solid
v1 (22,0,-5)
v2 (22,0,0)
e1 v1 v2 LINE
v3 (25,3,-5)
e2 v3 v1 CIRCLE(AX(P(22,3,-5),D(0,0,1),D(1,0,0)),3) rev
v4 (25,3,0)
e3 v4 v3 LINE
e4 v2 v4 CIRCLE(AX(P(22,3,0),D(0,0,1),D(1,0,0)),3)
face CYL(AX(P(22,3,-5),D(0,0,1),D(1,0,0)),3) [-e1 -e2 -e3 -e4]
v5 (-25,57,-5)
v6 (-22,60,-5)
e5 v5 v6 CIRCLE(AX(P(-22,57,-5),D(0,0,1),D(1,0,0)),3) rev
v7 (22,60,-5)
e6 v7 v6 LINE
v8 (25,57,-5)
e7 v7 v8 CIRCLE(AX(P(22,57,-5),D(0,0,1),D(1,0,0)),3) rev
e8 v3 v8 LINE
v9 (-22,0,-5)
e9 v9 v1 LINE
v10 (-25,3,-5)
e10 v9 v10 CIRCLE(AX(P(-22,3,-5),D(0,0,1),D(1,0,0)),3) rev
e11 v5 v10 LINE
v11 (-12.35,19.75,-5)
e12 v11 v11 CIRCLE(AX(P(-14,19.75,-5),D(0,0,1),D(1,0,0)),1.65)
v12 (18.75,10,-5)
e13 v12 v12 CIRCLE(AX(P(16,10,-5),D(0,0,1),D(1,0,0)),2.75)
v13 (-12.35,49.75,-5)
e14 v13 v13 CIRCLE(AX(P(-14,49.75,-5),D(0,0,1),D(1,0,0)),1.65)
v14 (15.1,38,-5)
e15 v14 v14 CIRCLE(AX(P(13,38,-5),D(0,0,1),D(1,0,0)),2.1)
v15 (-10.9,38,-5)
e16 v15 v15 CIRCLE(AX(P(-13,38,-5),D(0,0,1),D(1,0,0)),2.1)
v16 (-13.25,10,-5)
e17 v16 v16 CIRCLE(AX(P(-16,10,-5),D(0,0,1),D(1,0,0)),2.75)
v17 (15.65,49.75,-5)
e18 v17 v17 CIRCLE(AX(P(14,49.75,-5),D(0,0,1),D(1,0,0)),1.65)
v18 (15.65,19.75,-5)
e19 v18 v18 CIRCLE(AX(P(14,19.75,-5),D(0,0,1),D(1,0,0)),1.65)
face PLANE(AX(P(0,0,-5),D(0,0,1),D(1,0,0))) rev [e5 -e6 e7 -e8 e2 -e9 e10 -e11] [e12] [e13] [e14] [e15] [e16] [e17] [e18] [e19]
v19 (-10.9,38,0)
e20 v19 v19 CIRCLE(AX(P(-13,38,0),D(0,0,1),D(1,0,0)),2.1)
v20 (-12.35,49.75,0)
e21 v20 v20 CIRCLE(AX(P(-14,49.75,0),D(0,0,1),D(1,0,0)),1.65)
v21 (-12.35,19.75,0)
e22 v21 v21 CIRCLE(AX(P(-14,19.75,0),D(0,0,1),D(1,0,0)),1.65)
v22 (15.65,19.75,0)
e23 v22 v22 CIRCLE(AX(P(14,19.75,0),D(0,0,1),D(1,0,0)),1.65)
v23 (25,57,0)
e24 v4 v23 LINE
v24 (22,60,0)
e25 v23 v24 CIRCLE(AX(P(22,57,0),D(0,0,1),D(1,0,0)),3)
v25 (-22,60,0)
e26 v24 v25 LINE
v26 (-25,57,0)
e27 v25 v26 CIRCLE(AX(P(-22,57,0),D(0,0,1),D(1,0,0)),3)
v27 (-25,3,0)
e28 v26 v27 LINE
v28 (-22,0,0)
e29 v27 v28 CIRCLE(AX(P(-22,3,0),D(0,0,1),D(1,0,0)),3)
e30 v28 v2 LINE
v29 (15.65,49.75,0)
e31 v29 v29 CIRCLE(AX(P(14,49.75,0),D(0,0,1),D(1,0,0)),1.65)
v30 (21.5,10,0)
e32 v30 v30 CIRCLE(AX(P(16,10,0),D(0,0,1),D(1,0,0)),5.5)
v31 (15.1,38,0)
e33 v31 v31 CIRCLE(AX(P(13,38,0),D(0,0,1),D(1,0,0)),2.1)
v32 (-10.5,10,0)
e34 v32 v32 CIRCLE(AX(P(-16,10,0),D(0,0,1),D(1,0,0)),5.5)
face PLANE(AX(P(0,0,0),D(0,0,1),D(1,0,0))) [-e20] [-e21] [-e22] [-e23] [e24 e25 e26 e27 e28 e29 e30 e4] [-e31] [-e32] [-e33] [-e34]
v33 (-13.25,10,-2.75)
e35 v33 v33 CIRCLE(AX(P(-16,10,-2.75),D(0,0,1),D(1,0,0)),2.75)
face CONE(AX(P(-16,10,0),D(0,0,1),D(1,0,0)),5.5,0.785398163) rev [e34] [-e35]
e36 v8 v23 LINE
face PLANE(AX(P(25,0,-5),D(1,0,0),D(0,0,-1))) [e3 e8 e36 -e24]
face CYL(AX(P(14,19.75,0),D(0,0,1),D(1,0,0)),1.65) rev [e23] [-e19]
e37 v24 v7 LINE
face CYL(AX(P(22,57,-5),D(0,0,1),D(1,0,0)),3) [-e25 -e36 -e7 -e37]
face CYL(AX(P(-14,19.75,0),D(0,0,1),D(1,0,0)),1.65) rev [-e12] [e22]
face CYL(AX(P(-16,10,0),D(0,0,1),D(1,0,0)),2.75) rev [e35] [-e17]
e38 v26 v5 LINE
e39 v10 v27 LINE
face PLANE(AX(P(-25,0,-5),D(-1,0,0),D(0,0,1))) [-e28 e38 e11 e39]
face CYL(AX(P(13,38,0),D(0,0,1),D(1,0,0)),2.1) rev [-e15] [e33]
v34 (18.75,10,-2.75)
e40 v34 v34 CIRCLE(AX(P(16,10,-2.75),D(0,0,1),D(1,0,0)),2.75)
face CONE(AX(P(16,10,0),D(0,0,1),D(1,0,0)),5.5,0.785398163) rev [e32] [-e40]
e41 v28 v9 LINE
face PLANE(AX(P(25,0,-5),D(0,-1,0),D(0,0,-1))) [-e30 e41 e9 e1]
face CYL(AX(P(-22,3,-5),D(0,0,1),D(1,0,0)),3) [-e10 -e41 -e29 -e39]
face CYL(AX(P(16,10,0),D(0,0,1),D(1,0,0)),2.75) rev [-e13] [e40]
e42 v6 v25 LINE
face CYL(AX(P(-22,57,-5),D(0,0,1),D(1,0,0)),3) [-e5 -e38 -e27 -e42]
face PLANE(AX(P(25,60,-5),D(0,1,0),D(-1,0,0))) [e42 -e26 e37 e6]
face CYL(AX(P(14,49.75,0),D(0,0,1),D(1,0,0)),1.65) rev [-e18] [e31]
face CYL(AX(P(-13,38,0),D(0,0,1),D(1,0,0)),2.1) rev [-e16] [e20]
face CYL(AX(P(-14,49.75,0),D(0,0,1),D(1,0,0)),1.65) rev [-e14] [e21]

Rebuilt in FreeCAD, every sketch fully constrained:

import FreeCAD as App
import Part
import Sketcher

V = App.Vector
Q = App.Units.Quantity


def edges_at(feature, points):
    """Names of the edges that pass closest to the given points."""
    edges = feature.Shape.Edges
    near = lambda p: min(range(len(edges)), key=lambda i: edges[i].distToShape(Part.Vertex(*p))[0])
    return sorted({f"Edge{near(p) + 1}" for p in points})


def add_polygon(sketch, points):
    """Adds a closed chain of lines whose ends are joined by coincident constraints."""
    first, n = sketch.GeometryCount, len(points)
    for a, b in zip(points, points[1:] + points[:1]):
        sketch.addGeometry(Part.LineSegment(App.Vector(*a, 0), App.Vector(*b, 0)), False)
    for i in range(n):
        sketch.addConstraint(Sketcher.Constraint("Coincident", first + i, 2, first + (i + 1) % n, 1))

doc = App.newDocument("Part")
params = doc.addObject("Spreadsheet::Sheet", "Params")
for row, (alias, value) in enumerate([
    ("sketch1_width", "50 mm"),
    ("sketch1_height", "60 mm"),
    ("pad1_length", "5 mm"),
    ("sketch2_diameter", "5.5 mm"),
    ("hole_diameter", "5.5 mm"),
    ("hole_depth", "20 mm"),
    ("hole_csink_diameter", "11 mm"),
    ("sketch3_diameter", "3.3 mm"),
    ("hole2_diameter", "3.3 mm"),
    ("sketch4_diameter", "4.2 mm"),
    ("hole3_diameter", "4.2 mm"),
    ("fillet_radius", "3 mm"),
], start=1):
    params.set(f"A{row}", alias)
    params.set(f"B{row}", "=" + value)
    params.setAlias(f"B{row}", alias)

body = doc.addObject("PartDesign::Body", "Body")

# Sketch on XY plane
sketch1 = doc.addObject("Sketcher::SketchObject", "Sketch")
body.addObject(sketch1)
sketch1.AttachmentSupport = (doc.XY_Plane, [""])
sketch1.MapMode = "FlatFace"
add_polygon(sketch1, [(-25, 60), (-25, 0), (25, 0), (25, 60)])  # lines 0-3
sketch1.addConstraint(Sketcher.Constraint("Vertical", 0))
sketch1.addConstraint(Sketcher.Constraint("Horizontal", 1))
sketch1.addConstraint(Sketcher.Constraint("Vertical", 2))
sketch1.addConstraint(Sketcher.Constraint("Horizontal", 3))
sketch1.addConstraint(Sketcher.Constraint("Symmetric", 0, 2, 1, 2, -1, 1))
sketch1.addConstraint(Sketcher.Constraint("DistanceX", 1, 1, 1, 2, Q("50 mm")))
sketch1.addConstraint(Sketcher.Constraint("DistanceY", 0, 2, 0, 1, Q("60 mm")))
sketch1.setExpression("Constraints[9]", "Params.sketch1_width")
sketch1.setExpression("Constraints[10]", "Params.sketch1_height")
pad1 = doc.addObject("PartDesign::Pad", "Pad")
body.addObject(pad1)
pad1.Profile = sketch1
pad1.setExpression("Length", "Params.pad1_length")
pad1.Reversed = True

# Sketch on XY plane
sketch2 = doc.addObject("Sketcher::SketchObject", "Sketch001")
body.addObject(sketch2)
sketch2.AttachmentSupport = (doc.XY_Plane, [""])
sketch2.MapMode = "FlatFace"
sketch2.addGeometry(Part.Circle(V(-16, 10, 0), V(0, 0, 1), 2.8), False)
sketch2.addGeometry(Part.Circle(V(16, 10, 0), V(0, 0, 1), 2.8), False)
sketch2.addConstraint(Sketcher.Constraint("Equal", 0, 1))
sketch2.addConstraint(Sketcher.Constraint("Symmetric", 0, 3, 1, 3, -2))
sketch2.addConstraint(Sketcher.Constraint("Diameter", 0, Q("5.5 mm")))
sketch2.addConstraint(Sketcher.Constraint("DistanceX", 0, 3, -1, 1, Q("16 mm")))
sketch2.addConstraint(Sketcher.Constraint("DistanceY", -1, 1, 0, 3, Q("10 mm")))
sketch2.setExpression("Constraints[2]", "Params.sketch2_diameter")
doc.recompute()
hole = doc.addObject("PartDesign::Hole", "Hole")
body.addObject(hole)
hole.Profile = sketch2
hole.ThreadType = "None"
hole.setExpression("Diameter", "Params.hole_diameter")
hole.DepthType = "Dimension"
hole.setExpression("Depth", "Params.hole_depth")
hole.DrillPoint = "Angled"
hole.DrillPointAngle = 118
hole.HoleCutType = "Countersink"
hole.setExpression("HoleCutDiameter", "Params.hole_csink_diameter")
hole.HoleCutCountersinkAngle = 90

# Sketch on XY plane
sketch3 = doc.addObject("Sketcher::SketchObject", "Sketch002")
body.addObject(sketch3)
sketch3.AttachmentSupport = (doc.XY_Plane, [""])
sketch3.MapMode = "FlatFace"
sketch3.addGeometry(Part.Circle(V(-14, 19.8, 0), V(0, 0, 1), 1.6), False)
sketch3.addGeometry(Part.Circle(V(14, 19.8, 0), V(0, 0, 1), 1.6), False)
sketch3.addGeometry(Part.Circle(V(-14, 49.8, 0), V(0, 0, 1), 1.6), False)
sketch3.addGeometry(Part.Circle(V(14, 49.8, 0), V(0, 0, 1), 1.6), False)
sketch3.addConstraint(Sketcher.Constraint("Equal", 0, 1))
sketch3.addConstraint(Sketcher.Constraint("Equal", 1, 2))
sketch3.addConstraint(Sketcher.Constraint("Equal", 2, 3))
sketch3.addConstraint(Sketcher.Constraint("Symmetric", 0, 3, 1, 3, -2))
sketch3.addConstraint(Sketcher.Constraint("Symmetric", 2, 3, 3, 3, -2))
sketch3.addConstraint(Sketcher.Constraint("Vertical", 0, 3, 2, 3))
sketch3.addConstraint(Sketcher.Constraint("Diameter", 0, Q("3.3 mm")))
sketch3.addConstraint(Sketcher.Constraint("DistanceX", 0, 3, -1, 1, Q("14 mm")))
sketch3.addConstraint(Sketcher.Constraint("DistanceY", 0, 3, 2, 3, Q("30 mm")))
sketch3.addConstraint(Sketcher.Constraint("DistanceY", -1, 1, 0, 3, Q("19.75 mm")))
sketch3.setExpression("Constraints[6]", "Params.sketch3_diameter")
doc.recompute()
hole2 = doc.addObject("PartDesign::Hole", "Hole001")
body.addObject(hole2)
hole2.Profile = sketch3
hole2.ThreadType = "None"
hole2.setExpression("Diameter", "Params.hole2_diameter")
hole2.DepthType = "ThroughAll"

# Sketch on XY plane
sketch4 = doc.addObject("Sketcher::SketchObject", "Sketch003")
body.addObject(sketch4)
sketch4.AttachmentSupport = (doc.XY_Plane, [""])
sketch4.MapMode = "FlatFace"
sketch4.addGeometry(Part.Circle(V(-13, 38, 0), V(0, 0, 1), 2.1), False)
sketch4.addGeometry(Part.Circle(V(13, 38, 0), V(0, 0, 1), 2.1), False)
sketch4.addConstraint(Sketcher.Constraint("Equal", 0, 1))
sketch4.addConstraint(Sketcher.Constraint("Symmetric", 0, 3, 1, 3, -2))
sketch4.addConstraint(Sketcher.Constraint("Diameter", 0, Q("4.2 mm")))
sketch4.addConstraint(Sketcher.Constraint("DistanceX", 0, 3, -1, 1, Q("13 mm")))
sketch4.addConstraint(Sketcher.Constraint("DistanceY", -1, 1, 0, 3, Q("38 mm")))
sketch4.setExpression("Constraints[2]", "Params.sketch4_diameter")
doc.recompute()
hole3 = doc.addObject("PartDesign::Hole", "Hole002")
body.addObject(hole3)
hole3.Profile = sketch4
hole3.ThreadType = "None"
hole3.setExpression("Diameter", "Params.hole3_diameter")
hole3.DepthType = "ThroughAll"
doc.recompute()

fillet = doc.addObject("PartDesign::Fillet", "Fillet")
body.addObject(fillet)
fillet.Base = (hole3, edges_at(hole3, [
    (25, 0, -2.5),
    (-25, 0, -2.5),
    (-25, 60, -2.5),
    (25, 60, -2.5),
]))
fillet.setExpression("Radius", "Params.fillet_radius")

doc.recompute()
